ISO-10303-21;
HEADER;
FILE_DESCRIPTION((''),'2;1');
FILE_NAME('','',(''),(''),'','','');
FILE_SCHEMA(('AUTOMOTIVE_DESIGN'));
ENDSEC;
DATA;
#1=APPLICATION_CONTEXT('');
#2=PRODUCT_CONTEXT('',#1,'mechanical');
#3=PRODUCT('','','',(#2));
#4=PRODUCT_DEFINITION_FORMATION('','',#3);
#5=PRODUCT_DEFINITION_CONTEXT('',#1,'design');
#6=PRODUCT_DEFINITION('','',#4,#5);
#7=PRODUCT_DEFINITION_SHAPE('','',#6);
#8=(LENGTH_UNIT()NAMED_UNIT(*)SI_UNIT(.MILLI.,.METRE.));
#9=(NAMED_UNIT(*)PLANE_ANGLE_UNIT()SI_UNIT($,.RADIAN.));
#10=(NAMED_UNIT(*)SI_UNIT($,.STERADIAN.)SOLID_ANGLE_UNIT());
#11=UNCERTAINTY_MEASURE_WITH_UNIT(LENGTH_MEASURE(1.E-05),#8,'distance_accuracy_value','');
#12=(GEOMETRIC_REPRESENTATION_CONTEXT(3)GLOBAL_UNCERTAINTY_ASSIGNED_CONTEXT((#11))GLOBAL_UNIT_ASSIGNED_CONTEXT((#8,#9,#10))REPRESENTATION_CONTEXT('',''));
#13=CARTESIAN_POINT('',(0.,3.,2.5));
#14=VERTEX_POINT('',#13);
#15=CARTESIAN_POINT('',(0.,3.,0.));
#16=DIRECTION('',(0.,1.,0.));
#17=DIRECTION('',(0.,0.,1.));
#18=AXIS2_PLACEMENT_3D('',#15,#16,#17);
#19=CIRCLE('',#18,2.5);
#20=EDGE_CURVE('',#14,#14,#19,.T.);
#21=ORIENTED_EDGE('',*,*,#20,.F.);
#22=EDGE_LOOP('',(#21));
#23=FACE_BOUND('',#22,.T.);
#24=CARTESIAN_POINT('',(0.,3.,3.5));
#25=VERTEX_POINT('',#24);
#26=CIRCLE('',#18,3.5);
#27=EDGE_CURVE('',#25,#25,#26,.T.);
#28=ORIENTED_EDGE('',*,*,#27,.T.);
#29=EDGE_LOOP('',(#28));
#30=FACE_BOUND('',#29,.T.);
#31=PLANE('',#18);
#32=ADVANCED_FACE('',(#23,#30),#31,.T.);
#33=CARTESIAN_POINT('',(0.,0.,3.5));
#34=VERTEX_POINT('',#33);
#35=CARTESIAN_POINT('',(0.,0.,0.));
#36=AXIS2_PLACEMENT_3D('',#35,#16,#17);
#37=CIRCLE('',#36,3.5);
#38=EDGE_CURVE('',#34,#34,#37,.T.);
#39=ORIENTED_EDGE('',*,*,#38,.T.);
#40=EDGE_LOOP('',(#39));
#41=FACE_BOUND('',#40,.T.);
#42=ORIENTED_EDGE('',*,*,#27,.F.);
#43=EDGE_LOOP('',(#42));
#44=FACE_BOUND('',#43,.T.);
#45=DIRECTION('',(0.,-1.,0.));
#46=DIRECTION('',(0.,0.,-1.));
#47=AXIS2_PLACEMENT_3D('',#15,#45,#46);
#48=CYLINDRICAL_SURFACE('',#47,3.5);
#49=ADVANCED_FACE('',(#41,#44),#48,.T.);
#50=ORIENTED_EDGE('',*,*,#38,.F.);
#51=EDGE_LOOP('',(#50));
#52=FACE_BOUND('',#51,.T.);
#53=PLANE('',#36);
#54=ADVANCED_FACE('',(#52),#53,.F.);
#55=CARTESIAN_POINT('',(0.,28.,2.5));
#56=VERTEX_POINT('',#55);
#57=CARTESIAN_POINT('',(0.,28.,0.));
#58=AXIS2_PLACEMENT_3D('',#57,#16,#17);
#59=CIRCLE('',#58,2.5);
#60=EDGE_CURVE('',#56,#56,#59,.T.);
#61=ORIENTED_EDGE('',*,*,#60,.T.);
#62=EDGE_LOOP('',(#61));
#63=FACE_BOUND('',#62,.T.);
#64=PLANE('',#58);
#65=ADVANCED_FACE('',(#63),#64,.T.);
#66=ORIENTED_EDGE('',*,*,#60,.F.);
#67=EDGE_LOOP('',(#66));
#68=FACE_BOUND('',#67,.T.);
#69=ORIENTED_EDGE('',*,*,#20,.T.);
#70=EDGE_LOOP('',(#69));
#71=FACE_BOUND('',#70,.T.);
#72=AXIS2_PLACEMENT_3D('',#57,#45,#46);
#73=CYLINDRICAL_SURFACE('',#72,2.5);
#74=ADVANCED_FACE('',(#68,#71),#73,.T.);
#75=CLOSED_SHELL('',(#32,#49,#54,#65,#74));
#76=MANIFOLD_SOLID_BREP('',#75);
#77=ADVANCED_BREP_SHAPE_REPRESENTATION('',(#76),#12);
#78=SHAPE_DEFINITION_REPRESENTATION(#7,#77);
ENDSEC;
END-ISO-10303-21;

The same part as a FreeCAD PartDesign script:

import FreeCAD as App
import Part
import Sketcher
Q = App.Units.Quantity

doc = App.newDocument("Part")
body = doc.addObject("PartDesign::Body", "Body")

sketch1 = body.newObject("Sketcher::SketchObject", "Sketch")
sketch1.AttachmentSupport = (doc.getObject("XZ_Plane"), [""])
sketch1.MapMode = "FlatFace"
sketch1.addGeometry(Part.Circle(App.Vector(0, 0, 0), App.Vector(0, 0, 1), 3.5), False)
sketch1.addConstraint([
    Sketcher.Constraint("Coincident", 0, 3, -1, 1),
    Sketcher.Constraint("Diameter", 0, Q("7 mm")),
])
pad1 = body.newObject("PartDesign::Pad", "Pad")
pad1.Profile = sketch1
pad1.Length = 3
pad1.Reversed = True

sketch2 = body.newObject("Sketcher::SketchObject", "Sketch001")
sketch2.AttachmentSupport = (doc.getObject("XZ_Plane"), [""])
sketch2.MapMode = "FlatFace"
sketch2.AttachmentOffset = App.Placement(App.Vector(0, 0, -3), App.Rotation())
sketch2.addGeometry(Part.Circle(App.Vector(0, 0, 0), App.Vector(0, 0, 1), 2.5), False)
sketch2.addConstraint([
    Sketcher.Constraint("Coincident", 0, 3, -1, 1),
    Sketcher.Constraint("Diameter", 0, Q("5 mm")),
])
pad2 = body.newObject("PartDesign::Pad", "Pad001")
pad2.Profile = sketch2
pad2.Length = 25
pad2.Reversed = True

doc.recompute()
